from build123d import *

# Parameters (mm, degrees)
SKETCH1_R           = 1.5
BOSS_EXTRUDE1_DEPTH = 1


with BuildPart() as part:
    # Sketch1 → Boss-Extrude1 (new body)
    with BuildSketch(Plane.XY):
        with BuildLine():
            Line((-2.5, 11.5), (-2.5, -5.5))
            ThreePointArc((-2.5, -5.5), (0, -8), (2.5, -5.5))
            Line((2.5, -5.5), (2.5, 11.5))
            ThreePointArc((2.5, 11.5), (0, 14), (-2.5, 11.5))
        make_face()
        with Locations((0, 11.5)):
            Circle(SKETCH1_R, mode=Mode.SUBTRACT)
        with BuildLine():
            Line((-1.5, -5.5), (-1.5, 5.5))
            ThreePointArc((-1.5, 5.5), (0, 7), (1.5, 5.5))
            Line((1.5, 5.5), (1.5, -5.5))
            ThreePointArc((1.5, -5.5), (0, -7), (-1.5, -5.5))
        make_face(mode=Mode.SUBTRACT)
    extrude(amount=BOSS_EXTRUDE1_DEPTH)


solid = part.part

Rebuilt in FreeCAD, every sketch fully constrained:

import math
import FreeCAD as App
import Part
import Sketcher
from FreeCAD import Vector

doc = App.newDocument("Part")
body = doc.addObject("PartDesign::Body", "Body")

# Sketch on XY plane
sketch1 = body.newObject("Sketcher::SketchObject", "Sketch")
sketch1.AttachmentSupport = (doc.getObject("XY_Plane"), [""])
sketch1.MapMode = "FlatFace"
sketch1.addGeometry([
    Part.LineSegment(Vector(-2.5, 11.5, 0), Vector(-2.5, -5.5, 0)),  # 0
    Part.ArcOfCircle(Part.Circle(Vector(0, -5.5, 0), Vector(0, 0, 1), 2.5), math.radians(180), math.radians(360)),  # 1
    Part.LineSegment(Vector(2.5, -5.5, 0), Vector(2.5, 11.5, 0)),  # 2
    Part.ArcOfCircle(Part.Circle(Vector(0, 11.5, 0), Vector(0, 0, 1), 2.5), math.radians(0), math.radians(180)),  # 3
    Part.ArcOfCircle(Part.Circle(Vector(0, -5.5, 0), Vector(0, 0, 1), 1.5), math.radians(180), math.radians(360)),  # 4
    Part.LineSegment(Vector(-1.5, -5.5, 0), Vector(-1.5, 5.5, 0)),  # 5
    Part.ArcOfCircle(Part.Circle(Vector(0, 5.5, 0), Vector(0, 0, 1), 1.5), math.radians(0), math.radians(180)),  # 6
    Part.LineSegment(Vector(1.5, 5.5, 0), Vector(1.5, -5.5, 0)),  # 7
    Part.Circle(Vector(0, 11.5, 0), Vector(0, 0, 1), 1.5),  # 8
], False)
sketch1.addConstraint([
    Sketcher.Constraint("Tangent", 0, 2, 1, 1),
    Sketcher.Constraint("Tangent", 1, 2, 2, 1),
    Sketcher.Constraint("Tangent", 2, 2, 3, 1),
    Sketcher.Constraint("Tangent", 3, 2, 0, 1),
    Sketcher.Constraint("Tangent", 4, 1, 5, 1),
    Sketcher.Constraint("Tangent", 5, 2, 6, 2),
    Sketcher.Constraint("Tangent", 6, 1, 7, 1),
    Sketcher.Constraint("Tangent", 7, 2, 4, 2),
    Sketcher.Constraint("Vertical", 0),
    Sketcher.Constraint("Vertical", 2),
    Sketcher.Constraint("Vertical", 5),
    Sketcher.Constraint("Vertical", 7),
    Sketcher.Constraint("Coincident", 4, 3, 1, 3),
    Sketcher.Constraint("Coincident", 8, 3, 3, 3),
    Sketcher.Constraint("Equal", 6, 8),
    Sketcher.Constraint("Symmetric", 1, 3, 6, 3, -1, 1),
    Sketcher.Constraint("Diameter", 8, 3.0),
    Sketcher.Constraint("Radius", 1, 2.5),
    Sketcher.Constraint("DistanceY", 0, 2, 0, 1, 17.0),
    Sketcher.Constraint("DistanceY", 5, 1, 5, 2, 11.0),
])
pad1 = body.newObject("PartDesign::Pad", "Pad")
pad1.Profile = sketch1
pad1.Length = 1

doc.recompute()
